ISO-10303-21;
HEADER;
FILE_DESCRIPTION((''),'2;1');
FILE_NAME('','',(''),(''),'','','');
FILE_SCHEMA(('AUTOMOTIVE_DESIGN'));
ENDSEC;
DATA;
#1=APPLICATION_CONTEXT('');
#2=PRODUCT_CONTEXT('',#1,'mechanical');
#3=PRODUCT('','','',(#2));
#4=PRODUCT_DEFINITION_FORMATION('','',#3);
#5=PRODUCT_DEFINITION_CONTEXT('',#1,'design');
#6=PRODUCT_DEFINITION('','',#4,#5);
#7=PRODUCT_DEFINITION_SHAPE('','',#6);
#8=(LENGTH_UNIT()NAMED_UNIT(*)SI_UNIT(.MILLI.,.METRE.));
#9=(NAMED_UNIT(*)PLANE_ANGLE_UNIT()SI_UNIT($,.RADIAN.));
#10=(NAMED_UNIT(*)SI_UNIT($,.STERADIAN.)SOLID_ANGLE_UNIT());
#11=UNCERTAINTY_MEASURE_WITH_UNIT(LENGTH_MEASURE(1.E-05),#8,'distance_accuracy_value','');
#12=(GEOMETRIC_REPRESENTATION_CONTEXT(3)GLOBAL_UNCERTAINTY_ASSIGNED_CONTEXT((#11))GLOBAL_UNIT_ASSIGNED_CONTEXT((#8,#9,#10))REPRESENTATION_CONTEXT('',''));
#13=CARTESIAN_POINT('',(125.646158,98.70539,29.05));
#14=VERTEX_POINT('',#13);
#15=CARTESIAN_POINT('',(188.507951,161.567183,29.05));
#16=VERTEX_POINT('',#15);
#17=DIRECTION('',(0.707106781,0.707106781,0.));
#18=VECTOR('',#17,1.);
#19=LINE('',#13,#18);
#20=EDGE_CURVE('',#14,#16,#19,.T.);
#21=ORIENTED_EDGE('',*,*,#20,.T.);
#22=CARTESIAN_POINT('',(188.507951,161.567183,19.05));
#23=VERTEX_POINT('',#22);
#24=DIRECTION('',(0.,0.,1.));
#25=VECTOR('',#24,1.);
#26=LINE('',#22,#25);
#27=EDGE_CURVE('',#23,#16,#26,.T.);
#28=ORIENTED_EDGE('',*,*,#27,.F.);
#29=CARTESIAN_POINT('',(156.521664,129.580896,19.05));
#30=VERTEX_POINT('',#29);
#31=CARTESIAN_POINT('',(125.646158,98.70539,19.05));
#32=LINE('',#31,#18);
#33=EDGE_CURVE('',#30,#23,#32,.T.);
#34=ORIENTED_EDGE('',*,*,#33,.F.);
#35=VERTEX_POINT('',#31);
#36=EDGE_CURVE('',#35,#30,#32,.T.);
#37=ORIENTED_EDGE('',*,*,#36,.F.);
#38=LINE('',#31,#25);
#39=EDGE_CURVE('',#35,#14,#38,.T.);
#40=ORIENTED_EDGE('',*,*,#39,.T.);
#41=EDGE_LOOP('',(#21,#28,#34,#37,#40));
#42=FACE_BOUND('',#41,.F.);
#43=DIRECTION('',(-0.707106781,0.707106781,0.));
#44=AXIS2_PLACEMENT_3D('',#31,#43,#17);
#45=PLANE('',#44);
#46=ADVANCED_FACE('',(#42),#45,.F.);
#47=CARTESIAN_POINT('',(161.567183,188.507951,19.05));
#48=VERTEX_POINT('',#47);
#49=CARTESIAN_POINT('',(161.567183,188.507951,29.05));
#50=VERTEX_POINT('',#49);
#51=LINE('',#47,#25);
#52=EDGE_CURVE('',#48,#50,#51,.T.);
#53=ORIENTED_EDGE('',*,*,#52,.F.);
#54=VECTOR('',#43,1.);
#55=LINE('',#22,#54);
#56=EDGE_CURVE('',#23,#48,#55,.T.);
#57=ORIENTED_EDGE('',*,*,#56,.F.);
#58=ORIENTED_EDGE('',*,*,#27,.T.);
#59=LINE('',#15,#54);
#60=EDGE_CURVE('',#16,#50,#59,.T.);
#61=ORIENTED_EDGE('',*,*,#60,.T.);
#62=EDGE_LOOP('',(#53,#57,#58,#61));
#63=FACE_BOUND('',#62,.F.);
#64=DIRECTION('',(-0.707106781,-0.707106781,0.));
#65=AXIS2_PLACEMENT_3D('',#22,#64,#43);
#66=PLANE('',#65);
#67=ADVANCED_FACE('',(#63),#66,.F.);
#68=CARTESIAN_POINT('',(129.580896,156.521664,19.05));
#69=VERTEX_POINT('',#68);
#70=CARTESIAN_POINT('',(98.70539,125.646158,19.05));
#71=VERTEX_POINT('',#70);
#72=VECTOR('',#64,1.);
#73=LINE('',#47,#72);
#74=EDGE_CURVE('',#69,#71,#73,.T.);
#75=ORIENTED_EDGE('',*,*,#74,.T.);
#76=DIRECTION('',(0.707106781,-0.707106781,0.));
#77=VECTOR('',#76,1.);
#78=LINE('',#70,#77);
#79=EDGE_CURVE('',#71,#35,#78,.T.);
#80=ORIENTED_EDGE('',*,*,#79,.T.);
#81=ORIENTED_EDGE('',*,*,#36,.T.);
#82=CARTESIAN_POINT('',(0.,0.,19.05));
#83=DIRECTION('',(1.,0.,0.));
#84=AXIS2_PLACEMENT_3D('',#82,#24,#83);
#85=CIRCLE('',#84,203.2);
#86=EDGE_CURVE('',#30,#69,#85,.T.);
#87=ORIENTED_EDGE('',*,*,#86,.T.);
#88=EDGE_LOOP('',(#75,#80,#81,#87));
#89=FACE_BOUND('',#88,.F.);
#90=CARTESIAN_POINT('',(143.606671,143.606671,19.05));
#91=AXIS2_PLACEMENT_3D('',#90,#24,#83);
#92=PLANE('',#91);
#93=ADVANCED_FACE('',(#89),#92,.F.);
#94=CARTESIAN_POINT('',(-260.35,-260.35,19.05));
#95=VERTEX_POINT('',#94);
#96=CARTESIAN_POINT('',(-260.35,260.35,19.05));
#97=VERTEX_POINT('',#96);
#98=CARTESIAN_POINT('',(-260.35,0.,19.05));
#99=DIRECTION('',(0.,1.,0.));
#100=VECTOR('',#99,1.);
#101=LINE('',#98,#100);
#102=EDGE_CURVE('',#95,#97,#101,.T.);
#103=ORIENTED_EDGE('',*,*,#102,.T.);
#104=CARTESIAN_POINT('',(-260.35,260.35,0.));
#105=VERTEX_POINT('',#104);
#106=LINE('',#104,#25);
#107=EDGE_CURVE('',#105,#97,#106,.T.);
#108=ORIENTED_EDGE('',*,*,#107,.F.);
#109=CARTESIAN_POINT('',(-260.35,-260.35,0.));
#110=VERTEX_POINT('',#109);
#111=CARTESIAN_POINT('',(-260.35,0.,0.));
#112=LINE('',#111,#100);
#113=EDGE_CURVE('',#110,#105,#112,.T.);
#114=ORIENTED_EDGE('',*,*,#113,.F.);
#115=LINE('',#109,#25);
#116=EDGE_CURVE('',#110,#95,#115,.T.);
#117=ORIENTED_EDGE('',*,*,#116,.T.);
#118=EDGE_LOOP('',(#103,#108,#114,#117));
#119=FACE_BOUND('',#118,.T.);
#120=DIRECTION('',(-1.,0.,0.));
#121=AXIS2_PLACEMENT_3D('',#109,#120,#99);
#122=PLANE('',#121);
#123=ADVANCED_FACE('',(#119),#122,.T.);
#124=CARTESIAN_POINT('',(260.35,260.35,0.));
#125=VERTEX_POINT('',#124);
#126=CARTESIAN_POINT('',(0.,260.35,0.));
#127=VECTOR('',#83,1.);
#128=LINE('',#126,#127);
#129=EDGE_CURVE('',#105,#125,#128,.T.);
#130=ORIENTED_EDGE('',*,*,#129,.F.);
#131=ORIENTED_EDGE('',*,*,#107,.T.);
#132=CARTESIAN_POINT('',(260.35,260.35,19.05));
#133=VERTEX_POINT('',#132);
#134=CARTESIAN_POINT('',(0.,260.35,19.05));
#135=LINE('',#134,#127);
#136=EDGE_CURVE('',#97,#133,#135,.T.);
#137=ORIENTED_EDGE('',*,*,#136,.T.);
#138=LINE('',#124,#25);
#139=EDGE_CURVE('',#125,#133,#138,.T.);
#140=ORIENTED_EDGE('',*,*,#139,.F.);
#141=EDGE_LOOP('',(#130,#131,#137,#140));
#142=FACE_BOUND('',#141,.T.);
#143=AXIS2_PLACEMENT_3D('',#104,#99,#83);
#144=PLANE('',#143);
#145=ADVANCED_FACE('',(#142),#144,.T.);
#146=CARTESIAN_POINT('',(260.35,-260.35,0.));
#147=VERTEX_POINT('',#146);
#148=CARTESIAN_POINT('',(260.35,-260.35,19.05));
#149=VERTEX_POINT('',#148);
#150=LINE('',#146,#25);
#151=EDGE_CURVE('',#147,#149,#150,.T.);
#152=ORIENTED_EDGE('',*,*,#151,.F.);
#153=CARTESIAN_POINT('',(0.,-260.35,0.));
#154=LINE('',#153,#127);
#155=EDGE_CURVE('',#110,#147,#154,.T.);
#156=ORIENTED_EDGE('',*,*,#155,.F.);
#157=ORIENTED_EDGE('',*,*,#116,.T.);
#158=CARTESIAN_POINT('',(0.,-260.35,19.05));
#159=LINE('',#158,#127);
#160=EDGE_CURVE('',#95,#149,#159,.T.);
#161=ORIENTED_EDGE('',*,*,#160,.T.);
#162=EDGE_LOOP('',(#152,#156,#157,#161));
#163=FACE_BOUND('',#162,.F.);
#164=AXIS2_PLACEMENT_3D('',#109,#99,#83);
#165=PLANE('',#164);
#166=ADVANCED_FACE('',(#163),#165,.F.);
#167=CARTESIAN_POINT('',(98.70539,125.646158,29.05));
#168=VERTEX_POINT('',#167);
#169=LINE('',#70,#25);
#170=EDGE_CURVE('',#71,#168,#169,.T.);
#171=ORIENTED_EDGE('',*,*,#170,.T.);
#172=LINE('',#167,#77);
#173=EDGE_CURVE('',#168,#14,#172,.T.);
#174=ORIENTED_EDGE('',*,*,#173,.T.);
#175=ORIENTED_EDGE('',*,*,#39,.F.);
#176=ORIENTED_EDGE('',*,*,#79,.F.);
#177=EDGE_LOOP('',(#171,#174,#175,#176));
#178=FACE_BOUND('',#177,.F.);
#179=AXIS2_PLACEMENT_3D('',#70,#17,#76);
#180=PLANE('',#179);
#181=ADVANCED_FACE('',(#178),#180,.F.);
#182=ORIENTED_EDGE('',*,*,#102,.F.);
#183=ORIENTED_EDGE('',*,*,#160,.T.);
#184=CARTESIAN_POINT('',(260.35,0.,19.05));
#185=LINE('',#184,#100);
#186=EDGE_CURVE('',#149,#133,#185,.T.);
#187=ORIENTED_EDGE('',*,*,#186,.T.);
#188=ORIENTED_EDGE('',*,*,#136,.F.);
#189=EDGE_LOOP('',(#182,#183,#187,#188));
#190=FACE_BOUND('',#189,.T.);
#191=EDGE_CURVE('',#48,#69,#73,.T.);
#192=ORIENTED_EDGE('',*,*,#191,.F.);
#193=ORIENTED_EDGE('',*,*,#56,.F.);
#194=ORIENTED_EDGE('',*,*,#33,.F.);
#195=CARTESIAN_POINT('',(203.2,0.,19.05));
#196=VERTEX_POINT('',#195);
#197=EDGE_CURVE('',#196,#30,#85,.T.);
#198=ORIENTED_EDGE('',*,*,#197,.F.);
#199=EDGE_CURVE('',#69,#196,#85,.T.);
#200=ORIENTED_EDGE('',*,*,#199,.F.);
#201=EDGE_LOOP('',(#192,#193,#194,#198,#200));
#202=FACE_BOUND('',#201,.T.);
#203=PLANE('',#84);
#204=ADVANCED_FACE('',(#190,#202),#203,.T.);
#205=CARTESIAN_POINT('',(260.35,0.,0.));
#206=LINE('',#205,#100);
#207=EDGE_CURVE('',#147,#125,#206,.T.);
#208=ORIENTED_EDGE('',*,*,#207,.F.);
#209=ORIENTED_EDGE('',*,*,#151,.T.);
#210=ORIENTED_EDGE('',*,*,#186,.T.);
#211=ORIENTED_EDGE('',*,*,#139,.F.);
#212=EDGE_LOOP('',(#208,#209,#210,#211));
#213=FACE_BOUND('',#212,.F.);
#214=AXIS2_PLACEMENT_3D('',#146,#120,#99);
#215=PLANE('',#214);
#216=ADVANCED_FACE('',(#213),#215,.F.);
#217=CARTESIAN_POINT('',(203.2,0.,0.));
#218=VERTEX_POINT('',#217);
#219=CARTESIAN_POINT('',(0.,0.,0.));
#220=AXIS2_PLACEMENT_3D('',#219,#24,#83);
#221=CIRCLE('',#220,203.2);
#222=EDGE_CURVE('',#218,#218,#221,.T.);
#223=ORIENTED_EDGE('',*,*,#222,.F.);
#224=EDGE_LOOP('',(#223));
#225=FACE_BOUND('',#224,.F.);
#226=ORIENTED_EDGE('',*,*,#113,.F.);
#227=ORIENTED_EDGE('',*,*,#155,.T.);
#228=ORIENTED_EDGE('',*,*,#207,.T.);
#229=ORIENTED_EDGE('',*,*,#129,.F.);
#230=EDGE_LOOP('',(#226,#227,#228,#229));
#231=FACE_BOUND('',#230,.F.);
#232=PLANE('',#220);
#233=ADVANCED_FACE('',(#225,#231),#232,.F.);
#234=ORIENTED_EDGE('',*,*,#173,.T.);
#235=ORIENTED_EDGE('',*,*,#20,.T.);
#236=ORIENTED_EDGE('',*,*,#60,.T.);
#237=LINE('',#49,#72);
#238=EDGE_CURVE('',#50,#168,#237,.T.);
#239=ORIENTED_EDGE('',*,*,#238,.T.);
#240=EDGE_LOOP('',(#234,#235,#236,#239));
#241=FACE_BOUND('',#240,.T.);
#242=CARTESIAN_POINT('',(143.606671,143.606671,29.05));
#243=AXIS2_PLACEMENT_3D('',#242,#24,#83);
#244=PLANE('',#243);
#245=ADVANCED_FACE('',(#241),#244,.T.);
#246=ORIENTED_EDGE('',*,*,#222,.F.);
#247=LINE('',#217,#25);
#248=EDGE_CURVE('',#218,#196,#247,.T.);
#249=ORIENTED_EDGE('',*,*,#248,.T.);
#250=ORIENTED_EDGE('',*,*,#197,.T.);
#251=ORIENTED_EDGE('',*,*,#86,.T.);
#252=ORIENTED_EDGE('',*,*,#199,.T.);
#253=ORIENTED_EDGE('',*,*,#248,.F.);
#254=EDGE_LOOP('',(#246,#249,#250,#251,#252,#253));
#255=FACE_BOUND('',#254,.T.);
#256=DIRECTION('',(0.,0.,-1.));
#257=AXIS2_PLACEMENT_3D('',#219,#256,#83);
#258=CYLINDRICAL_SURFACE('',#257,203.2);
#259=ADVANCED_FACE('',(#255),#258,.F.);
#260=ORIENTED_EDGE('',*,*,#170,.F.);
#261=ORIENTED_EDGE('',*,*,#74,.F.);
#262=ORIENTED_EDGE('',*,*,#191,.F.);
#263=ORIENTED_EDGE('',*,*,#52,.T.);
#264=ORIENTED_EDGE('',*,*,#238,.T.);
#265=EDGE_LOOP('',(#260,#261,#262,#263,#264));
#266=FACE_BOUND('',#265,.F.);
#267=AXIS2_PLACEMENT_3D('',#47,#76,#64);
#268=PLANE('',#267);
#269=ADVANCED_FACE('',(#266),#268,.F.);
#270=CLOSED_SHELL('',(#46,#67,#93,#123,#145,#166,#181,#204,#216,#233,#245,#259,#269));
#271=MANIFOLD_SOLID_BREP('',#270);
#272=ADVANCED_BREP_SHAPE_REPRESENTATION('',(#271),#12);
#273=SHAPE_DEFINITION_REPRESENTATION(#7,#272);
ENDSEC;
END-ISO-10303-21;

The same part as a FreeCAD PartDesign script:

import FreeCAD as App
import Part
import Sketcher
from FreeCAD import Vector
Q = App.Units.Quantity

doc = App.newDocument("Part")
body = doc.addObject("PartDesign::Body", "Body")

sketch1 = doc.addObject("Sketcher::SketchObject", "Sketch")
body.addObject(sketch1)
sketch1.AttachmentSupport = (doc.XY_Plane, [""])
sketch1.MapMode = "FlatFace"
sketch1.addGeometry([
    Part.LineSegment(Vector(-260.35, 260.35, 0), Vector(-260.35, -260.35, 0)),
    Part.LineSegment(Vector(-260.35, -260.35, 0), Vector(260.35, -260.35, 0)),
    Part.LineSegment(Vector(260.35, -260.35, 0), Vector(260.35, 260.35, 0)),
    Part.LineSegment(Vector(260.35, 260.35, 0), Vector(-260.35, 260.35, 0)),
    Part.Circle(Vector(0, 0, 0), Vector(0, 0, 1), 203.2),
], False)
sketch1.addConstraint([
    Sketcher.Constraint("Coincident", 0, 2, 1, 1),
    Sketcher.Constraint("Coincident", 1, 2, 2, 1),
    Sketcher.Constraint("Coincident", 2, 2, 3, 1),
    Sketcher.Constraint("Coincident", 3, 2, 0, 1),
    Sketcher.Constraint("Vertical", 0),
    Sketcher.Constraint("Horizontal", 1),
    Sketcher.Constraint("Vertical", 2),
    Sketcher.Constraint("Horizontal", 3),
    Sketcher.Constraint("Coincident", 4, 3, -1, 1),
    Sketcher.Constraint("Symmetric", 0, 2, 2, 2, -1, 1),
    Sketcher.Constraint("Equal", 3, 0),
    Sketcher.Constraint("Diameter", 4, Q("16 in")),
    Sketcher.Constraint("DistanceX", 1, 1, 1, 2, Q("20.5 in")),
])
pad1 = doc.addObject("PartDesign::Pad", "Pad")
body.addObject(pad1)
pad1.Profile = sketch1
pad1.Length = Q("0.75 in")

sketch2 = doc.addObject("Sketcher::SketchObject", "Sketch001")
body.addObject(sketch2)
sketch2.AttachmentSupport = (doc.XY_Plane, [""])
sketch2.MapMode = "FlatFace"
sketch2.AttachmentOffset = App.Placement(Vector(0, 0, 0.75 * 25.4), App.Rotation())
sketch2.addGeometry([
    Part.LineSegment(Vector(98.70539, 125.646158, 0), Vector(125.646158, 98.70539, 0)),
    Part.LineSegment(Vector(125.646158, 98.70539, 0), Vector(188.507951, 161.567183, 0)),
    Part.LineSegment(Vector(188.507951, 161.567183, 0), Vector(161.567183, 188.507951, 0)),
    Part.LineSegment(Vector(161.567183, 188.507951, 0), Vector(98.70539, 125.646158, 0)),
], False)
sketch2.addConstraint([
    Sketcher.Constraint("Coincident", 0, 2, 1, 1),
    Sketcher.Constraint("Coincident", 1, 2, 2, 1),
    Sketcher.Constraint("Coincident", 2, 2, 3, 1),
    Sketcher.Constraint("Coincident", 3, 2, 0, 1),
    Sketcher.Constraint("Perpendicular", 0, 1),
    Sketcher.Constraint("Perpendicular", 1, 2),
    Sketcher.Constraint("Perpendicular", 2, 3),
    Sketcher.Constraint("Angle", 0, Q("-45 deg")),
    Sketcher.Constraint("Distance", 0, Q("1.5 in")),
    Sketcher.Constraint("Distance", 1, Q("3.5 in")),
    Sketcher.Constraint("DistanceX", -1, 1, 0, 2, Q("125.646158 mm")),
    Sketcher.Constraint("DistanceY", -1, 1, 0, 2, Q("98.70539 mm")),
])
pad2 = doc.addObject("PartDesign::Pad", "Pad001")
body.addObject(pad2)
pad2.Profile = sketch2
pad2.Length = 10

doc.recompute()
